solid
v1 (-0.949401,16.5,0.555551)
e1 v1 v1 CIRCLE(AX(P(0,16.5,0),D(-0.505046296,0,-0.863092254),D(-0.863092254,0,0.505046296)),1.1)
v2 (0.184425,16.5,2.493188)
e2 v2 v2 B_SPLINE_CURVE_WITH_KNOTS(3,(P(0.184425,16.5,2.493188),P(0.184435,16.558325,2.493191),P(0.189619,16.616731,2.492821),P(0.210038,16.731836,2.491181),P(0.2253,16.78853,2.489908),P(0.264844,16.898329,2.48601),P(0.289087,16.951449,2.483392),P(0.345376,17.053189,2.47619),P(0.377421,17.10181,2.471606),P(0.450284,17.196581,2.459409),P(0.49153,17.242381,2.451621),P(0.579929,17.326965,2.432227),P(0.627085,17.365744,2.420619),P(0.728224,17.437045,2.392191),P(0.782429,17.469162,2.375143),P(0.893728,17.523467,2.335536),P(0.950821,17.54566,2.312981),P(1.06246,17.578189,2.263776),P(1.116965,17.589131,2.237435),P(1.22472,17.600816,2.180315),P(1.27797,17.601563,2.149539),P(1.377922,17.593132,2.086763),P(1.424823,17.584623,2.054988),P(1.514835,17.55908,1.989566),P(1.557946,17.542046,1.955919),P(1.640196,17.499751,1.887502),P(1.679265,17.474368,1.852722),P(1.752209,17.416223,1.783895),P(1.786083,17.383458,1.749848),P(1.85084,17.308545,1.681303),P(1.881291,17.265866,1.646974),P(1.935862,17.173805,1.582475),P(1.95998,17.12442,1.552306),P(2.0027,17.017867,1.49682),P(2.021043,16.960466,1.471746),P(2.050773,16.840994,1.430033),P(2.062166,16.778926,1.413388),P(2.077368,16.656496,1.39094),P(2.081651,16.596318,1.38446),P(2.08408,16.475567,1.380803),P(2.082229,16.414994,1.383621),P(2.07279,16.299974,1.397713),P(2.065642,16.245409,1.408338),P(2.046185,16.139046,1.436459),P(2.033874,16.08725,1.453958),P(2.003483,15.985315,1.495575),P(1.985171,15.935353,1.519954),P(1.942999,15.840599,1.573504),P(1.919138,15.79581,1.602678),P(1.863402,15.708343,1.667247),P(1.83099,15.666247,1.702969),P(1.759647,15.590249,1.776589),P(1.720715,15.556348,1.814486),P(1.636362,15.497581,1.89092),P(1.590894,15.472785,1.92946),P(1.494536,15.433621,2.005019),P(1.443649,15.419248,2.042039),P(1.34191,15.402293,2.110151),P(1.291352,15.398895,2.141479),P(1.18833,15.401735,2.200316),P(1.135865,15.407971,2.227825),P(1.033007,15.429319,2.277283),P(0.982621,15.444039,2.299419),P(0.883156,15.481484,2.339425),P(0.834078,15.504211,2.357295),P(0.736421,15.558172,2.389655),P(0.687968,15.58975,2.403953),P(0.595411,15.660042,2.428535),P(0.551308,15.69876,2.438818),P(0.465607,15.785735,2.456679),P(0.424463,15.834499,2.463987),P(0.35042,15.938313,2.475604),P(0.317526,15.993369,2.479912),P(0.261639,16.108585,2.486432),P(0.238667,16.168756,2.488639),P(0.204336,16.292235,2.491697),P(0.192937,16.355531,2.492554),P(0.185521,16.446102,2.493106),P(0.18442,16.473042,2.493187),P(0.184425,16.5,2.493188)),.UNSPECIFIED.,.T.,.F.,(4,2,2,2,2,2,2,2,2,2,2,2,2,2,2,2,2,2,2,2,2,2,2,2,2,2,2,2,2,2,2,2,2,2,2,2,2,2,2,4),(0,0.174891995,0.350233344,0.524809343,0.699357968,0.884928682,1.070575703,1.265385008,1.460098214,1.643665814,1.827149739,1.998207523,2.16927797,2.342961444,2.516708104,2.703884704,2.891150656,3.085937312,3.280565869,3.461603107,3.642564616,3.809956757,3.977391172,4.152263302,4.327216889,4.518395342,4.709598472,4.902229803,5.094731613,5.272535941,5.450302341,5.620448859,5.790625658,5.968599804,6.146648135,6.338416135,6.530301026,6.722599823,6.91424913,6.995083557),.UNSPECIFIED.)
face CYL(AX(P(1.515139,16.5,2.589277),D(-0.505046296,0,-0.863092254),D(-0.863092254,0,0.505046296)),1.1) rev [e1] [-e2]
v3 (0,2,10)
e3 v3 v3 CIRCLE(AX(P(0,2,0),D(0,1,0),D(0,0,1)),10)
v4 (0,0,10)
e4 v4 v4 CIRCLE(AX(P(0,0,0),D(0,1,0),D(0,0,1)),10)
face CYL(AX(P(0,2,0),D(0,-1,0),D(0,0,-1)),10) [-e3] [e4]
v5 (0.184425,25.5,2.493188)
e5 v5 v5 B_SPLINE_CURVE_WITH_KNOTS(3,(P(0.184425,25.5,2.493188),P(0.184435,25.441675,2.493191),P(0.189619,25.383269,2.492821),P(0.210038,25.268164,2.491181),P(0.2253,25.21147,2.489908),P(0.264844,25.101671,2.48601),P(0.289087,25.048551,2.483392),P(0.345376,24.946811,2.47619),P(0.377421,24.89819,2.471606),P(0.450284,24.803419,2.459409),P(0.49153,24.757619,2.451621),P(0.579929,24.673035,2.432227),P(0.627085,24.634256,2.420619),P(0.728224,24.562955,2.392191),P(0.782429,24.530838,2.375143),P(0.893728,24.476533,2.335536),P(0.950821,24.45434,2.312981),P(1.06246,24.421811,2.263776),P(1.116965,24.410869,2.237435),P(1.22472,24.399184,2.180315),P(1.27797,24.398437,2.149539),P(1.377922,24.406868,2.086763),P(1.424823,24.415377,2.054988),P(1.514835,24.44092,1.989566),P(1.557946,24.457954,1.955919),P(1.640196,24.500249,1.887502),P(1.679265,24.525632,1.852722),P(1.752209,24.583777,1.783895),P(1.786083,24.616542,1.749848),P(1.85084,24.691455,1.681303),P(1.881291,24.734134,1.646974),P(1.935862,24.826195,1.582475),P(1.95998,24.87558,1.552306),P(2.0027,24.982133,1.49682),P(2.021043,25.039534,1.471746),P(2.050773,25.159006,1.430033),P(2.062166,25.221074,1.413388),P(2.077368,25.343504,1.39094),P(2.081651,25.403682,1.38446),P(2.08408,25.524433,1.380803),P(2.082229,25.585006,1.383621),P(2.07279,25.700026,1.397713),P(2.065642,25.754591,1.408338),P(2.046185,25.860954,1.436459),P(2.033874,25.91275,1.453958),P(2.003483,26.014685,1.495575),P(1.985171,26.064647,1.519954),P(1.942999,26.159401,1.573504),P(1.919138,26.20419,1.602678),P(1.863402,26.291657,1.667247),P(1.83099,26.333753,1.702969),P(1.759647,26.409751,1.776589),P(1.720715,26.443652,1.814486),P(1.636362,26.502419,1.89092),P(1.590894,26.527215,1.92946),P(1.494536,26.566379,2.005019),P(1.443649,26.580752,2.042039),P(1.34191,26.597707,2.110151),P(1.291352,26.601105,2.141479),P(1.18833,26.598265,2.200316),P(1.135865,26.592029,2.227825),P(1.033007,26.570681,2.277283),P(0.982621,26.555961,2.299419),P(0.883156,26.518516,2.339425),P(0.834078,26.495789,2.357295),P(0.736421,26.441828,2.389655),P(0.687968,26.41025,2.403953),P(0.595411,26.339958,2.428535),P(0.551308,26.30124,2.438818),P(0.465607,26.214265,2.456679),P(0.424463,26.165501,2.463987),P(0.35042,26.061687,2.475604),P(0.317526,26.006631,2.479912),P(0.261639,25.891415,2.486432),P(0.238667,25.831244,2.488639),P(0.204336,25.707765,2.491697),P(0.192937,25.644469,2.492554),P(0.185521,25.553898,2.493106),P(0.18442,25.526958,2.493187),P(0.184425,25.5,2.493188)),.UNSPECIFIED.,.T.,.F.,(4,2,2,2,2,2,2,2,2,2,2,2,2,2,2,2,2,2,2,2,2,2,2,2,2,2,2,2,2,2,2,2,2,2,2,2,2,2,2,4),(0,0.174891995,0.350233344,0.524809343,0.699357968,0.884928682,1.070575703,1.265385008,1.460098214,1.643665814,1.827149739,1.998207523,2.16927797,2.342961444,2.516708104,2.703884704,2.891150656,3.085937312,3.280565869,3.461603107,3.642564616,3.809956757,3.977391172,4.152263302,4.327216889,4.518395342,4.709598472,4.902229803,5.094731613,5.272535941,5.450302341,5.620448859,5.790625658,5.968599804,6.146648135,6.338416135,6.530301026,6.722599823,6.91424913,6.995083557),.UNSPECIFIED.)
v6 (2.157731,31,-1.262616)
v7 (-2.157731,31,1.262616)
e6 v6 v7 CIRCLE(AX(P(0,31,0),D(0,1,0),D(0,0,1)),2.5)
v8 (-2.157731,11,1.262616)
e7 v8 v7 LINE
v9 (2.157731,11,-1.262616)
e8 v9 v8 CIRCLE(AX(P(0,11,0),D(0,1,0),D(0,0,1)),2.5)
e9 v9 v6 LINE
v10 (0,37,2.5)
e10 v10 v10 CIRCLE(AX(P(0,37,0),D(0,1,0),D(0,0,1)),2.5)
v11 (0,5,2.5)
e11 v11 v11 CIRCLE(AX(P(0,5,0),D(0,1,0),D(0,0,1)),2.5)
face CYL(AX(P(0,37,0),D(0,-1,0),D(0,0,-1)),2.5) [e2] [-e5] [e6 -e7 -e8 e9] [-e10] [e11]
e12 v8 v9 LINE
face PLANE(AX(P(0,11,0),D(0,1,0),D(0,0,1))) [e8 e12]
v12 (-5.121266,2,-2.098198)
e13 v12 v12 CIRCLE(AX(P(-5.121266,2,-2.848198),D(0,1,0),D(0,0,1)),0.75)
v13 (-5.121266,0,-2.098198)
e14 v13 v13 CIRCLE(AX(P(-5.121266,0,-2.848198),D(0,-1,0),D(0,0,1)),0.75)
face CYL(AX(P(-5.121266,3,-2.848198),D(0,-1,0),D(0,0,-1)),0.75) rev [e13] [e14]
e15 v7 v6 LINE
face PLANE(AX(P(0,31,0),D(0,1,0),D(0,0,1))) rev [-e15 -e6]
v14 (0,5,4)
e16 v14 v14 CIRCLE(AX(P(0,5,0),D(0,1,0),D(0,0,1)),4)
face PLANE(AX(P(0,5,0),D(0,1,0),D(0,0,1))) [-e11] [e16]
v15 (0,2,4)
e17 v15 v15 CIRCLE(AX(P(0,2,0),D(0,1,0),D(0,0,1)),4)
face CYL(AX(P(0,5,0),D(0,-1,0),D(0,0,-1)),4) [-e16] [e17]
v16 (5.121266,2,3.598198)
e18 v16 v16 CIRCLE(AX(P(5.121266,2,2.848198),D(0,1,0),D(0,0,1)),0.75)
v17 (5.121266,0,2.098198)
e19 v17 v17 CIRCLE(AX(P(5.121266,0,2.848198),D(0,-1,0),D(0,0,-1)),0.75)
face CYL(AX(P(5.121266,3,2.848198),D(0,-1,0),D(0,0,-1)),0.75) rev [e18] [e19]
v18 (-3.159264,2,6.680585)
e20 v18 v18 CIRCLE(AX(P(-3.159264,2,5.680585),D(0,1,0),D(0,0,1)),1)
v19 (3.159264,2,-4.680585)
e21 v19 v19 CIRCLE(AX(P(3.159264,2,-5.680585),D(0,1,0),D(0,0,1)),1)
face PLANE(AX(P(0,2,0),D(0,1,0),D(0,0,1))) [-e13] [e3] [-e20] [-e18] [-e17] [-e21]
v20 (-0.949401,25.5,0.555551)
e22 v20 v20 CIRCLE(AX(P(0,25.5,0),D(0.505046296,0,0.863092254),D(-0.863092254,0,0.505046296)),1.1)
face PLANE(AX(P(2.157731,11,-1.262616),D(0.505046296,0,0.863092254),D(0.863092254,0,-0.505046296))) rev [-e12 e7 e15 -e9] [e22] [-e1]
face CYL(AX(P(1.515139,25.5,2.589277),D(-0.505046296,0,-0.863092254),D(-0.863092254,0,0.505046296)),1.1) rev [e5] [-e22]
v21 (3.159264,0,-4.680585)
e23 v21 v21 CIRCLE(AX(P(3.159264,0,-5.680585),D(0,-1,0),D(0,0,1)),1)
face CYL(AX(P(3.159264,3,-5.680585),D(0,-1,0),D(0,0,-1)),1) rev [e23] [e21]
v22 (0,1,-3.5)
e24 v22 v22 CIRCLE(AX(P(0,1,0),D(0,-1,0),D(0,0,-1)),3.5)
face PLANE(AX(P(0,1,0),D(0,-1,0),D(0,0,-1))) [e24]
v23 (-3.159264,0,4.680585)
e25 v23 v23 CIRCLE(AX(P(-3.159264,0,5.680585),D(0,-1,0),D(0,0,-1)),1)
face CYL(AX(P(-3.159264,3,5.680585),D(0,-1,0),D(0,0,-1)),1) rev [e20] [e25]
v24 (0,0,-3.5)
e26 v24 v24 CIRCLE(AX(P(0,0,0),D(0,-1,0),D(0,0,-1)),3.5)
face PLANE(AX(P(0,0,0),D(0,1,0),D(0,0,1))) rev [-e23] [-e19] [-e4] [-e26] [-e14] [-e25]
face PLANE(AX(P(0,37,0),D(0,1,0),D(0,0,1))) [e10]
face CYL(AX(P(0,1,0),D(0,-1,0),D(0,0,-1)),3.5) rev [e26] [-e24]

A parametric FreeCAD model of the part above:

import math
import FreeCAD as App
import Part
import Sketcher

V = App.Vector
Q = App.Units.Quantity

doc = App.newDocument("Part")
body = doc.addObject("PartDesign::Body", "Body")

# Sketch on XZ plane
sketch1 = body.newObject("Sketcher::SketchObject", "Sketch")
sketch1.AttachmentSupport = (doc.getObject("XZ_Plane"), [""])
sketch1.MapMode = "FlatFace"
sketch1.addGeometry(Part.Circle(V(0, 0, 0), V(0, 0, 1), 10), False)
sketch1.addConstraint([
    Sketcher.Constraint("Coincident", 0, 3, -1, 1),
    Sketcher.Constraint("Diameter", 0, Q("20 mm")),
])
pad1 = body.newObject("PartDesign::Pad", "Pad")
pad1.Profile = sketch1
pad1.Length = 2
pad1.Reversed = True

# Sketch on XZ plane
sketch2 = body.newObject("Sketcher::SketchObject", "Sketch001")
sketch2.AttachmentSupport = (doc.getObject("XZ_Plane"), [""])
sketch2.MapMode = "FlatFace"
sketch2.AttachmentOffset = App.Placement(V(0, 0, -2), App.Rotation())
sketch2.addGeometry(Part.Circle(V(0, 0, 0), V(0, 0, 1), 2.5), False)
sketch2.addConstraint([
    Sketcher.Constraint("Coincident", 0, 3, -1, 1),
    Sketcher.Constraint("Diameter", 0, Q("5 mm")),
])
pad2 = body.newObject("PartDesign::Pad", "Pad001")
pad2.Profile = sketch2
pad2.Length = 35
pad2.Reversed = True

# Sketch on XZ plane
sketch3 = body.newObject("Sketcher::SketchObject", "Sketch002")
sketch3.AttachmentSupport = (doc.getObject("XZ_Plane"), [""])
sketch3.MapMode = "FlatFace"
sketch3.addGeometry([
    Part.Circle(V(-3.2, 5.7, 0), V(0, 0, 1), 1),
    Part.Circle(V(3.2, -5.7, 0), V(0, 0, 1), 1),
    Part.Circle(V(5.1, 2.8, 0), V(0, 0, 1), 0.8),
    Part.Circle(V(-5.1, -2.8, 0), V(0, 0, 1), 0.8),
], False)
sketch3.addConstraint([
    Sketcher.Constraint("Equal", 0, 1),
    Sketcher.Constraint("Equal", 2, 3),
    Sketcher.Constraint("Symmetric", 0, 3, 1, 3, -1, 1),
    Sketcher.Constraint("Symmetric", 2, 3, 3, 3, -1, 1),
    Sketcher.Constraint("Diameter", 0, Q("2 mm")),
    Sketcher.Constraint("Diameter", 2, Q("1.5 mm")),
    Sketcher.Constraint("DistanceY", -1, 1, 2, 3, Q("2.848198 mm")),
    Sketcher.Constraint("DistanceX", 0, 3, 1, 3, Q("6.318528 mm")),
    Sketcher.Constraint("DistanceY", 1, 3, 0, 3, Q("11.361171 mm")),
    Sketcher.Constraint("DistanceX", 0, 3, 2, 3, Q("8.28053 mm")),
])
pocket1 = body.newObject("PartDesign::Pocket", "Pocket")
pocket1.Profile = sketch3
pocket1.Length = 3

# Sketch on XZ plane
sketch4 = body.newObject("Sketcher::SketchObject", "Sketch003")
sketch4.AttachmentSupport = (doc.getObject("XZ_Plane"), [""])
sketch4.MapMode = "FlatFace"
sketch4.addGeometry(Part.Circle(V(0, 0, 0), V(0, 0, 1), 3.5), False)
sketch4.addConstraint([
    Sketcher.Constraint("Coincident", 0, 3, -1, 1),
    Sketcher.Constraint("Diameter", 0, Q("7 mm")),
])
pocket2 = body.newObject("PartDesign::Pocket", "Pocket001")
pocket2.Profile = sketch4
pocket2.Length = 1

# Sketch on XZ plane
sketch5 = body.newObject("Sketcher::SketchObject", "Sketch004")
sketch5.AttachmentSupport = (doc.getObject("XZ_Plane"), [""])
sketch5.MapMode = "FlatFace"
sketch5.AttachmentOffset = App.Placement(V(0, 0, -2), App.Rotation())
sketch5.addGeometry(Part.Circle(V(0, 0, 0), V(0, 0, 1), 4), False)
sketch5.addConstraint([
    Sketcher.Constraint("Coincident", 0, 3, -1, 1),
    Sketcher.Constraint("Diameter", 0, Q("8 mm")),
])
pad3 = body.newObject("PartDesign::Pad", "Pad002")
pad3.Profile = sketch5
pad3.Length = 3
pad3.Reversed = True

# Sketch on XZ plane
sketch6 = body.newObject("Sketcher::SketchObject", "Sketch005")
sketch6.AttachmentSupport = (doc.getObject("XZ_Plane"), [""])
sketch6.MapMode = "FlatFace"
sketch6.AttachmentOffset = App.Placement(V(0, 0, -11), App.Rotation())
sketch6.addGeometry([
    Part.LineSegment(V(-2.2, 1.3, 0), V(2.2, -1.3, 0)),
    Part.ArcOfCircle(Part.Circle(V(0, 0, 0), V(0, 0, 1), 2.5), math.radians(150), math.radians(330)),
], False)
sketch6.addConstraint([
    Sketcher.Constraint("Coincident", 0, 1, 1, 1),
    Sketcher.Constraint("Coincident", 1, 2, 0, 2),
    Sketcher.Constraint("Coincident", 1, 3, -1, 1),
    Sketcher.Constraint("Radius", 1, Q("2.5 mm")),
    Sketcher.Constraint("DistanceX", 0, 1, -1, 1, Q("2.157731 mm")),
    Sketcher.Constraint("DistanceX", -1, 1, 1, 2, Q("2.157731 mm")),
])
pocket3 = body.newObject("PartDesign::Pocket", "Pocket002")
pocket3.Profile = sketch6
pocket3.Length = 20

# Sketch on an angled plane
sketch7 = body.newObject("Sketcher::SketchObject", "Sketch006")
sketch7.Placement = App.Placement(V(0, 0, 0), App.Rotation(V(-0.863092254, 0, 0.505046296), V(0, 1, 0), V(-0.505046296, 0, -0.863092254), "ZXY"))
sketch7.addGeometry(Part.Circle(V(0, 16.5, 0), V(0, 0, 1), 1.1), False)
sketch7.addConstraint([
    Sketcher.Constraint("PointOnObject", 0, 3, -2),
    Sketcher.Constraint("Diameter", 0, Q("2.2 mm")),
    Sketcher.Constraint("DistanceY", -1, 1, 0, 3, Q("16.5 mm")),
])
pocket4 = body.newObject("PartDesign::Pocket", "Pocket003")
pocket4.Profile = sketch7
pocket4.Length = 3
doc.recompute()

datumplane = body.newObject("PartDesign::Plane", "DatumPlane")
datumplane.AttachmentSupport = (doc.getObject("XZ_Plane"), [""])
datumplane.MapMode = "FlatFace"
datumplane.AttachmentOffset = App.Placement(V(0, 0, -21), App.Rotation())
mirrored = body.newObject("PartDesign::Mirrored", "Mirrored")
mirrored.Originals = [pocket4]
mirrored.MirrorPlane = (datumplane, [""])
body.Tip = mirrored

doc.recompute()
